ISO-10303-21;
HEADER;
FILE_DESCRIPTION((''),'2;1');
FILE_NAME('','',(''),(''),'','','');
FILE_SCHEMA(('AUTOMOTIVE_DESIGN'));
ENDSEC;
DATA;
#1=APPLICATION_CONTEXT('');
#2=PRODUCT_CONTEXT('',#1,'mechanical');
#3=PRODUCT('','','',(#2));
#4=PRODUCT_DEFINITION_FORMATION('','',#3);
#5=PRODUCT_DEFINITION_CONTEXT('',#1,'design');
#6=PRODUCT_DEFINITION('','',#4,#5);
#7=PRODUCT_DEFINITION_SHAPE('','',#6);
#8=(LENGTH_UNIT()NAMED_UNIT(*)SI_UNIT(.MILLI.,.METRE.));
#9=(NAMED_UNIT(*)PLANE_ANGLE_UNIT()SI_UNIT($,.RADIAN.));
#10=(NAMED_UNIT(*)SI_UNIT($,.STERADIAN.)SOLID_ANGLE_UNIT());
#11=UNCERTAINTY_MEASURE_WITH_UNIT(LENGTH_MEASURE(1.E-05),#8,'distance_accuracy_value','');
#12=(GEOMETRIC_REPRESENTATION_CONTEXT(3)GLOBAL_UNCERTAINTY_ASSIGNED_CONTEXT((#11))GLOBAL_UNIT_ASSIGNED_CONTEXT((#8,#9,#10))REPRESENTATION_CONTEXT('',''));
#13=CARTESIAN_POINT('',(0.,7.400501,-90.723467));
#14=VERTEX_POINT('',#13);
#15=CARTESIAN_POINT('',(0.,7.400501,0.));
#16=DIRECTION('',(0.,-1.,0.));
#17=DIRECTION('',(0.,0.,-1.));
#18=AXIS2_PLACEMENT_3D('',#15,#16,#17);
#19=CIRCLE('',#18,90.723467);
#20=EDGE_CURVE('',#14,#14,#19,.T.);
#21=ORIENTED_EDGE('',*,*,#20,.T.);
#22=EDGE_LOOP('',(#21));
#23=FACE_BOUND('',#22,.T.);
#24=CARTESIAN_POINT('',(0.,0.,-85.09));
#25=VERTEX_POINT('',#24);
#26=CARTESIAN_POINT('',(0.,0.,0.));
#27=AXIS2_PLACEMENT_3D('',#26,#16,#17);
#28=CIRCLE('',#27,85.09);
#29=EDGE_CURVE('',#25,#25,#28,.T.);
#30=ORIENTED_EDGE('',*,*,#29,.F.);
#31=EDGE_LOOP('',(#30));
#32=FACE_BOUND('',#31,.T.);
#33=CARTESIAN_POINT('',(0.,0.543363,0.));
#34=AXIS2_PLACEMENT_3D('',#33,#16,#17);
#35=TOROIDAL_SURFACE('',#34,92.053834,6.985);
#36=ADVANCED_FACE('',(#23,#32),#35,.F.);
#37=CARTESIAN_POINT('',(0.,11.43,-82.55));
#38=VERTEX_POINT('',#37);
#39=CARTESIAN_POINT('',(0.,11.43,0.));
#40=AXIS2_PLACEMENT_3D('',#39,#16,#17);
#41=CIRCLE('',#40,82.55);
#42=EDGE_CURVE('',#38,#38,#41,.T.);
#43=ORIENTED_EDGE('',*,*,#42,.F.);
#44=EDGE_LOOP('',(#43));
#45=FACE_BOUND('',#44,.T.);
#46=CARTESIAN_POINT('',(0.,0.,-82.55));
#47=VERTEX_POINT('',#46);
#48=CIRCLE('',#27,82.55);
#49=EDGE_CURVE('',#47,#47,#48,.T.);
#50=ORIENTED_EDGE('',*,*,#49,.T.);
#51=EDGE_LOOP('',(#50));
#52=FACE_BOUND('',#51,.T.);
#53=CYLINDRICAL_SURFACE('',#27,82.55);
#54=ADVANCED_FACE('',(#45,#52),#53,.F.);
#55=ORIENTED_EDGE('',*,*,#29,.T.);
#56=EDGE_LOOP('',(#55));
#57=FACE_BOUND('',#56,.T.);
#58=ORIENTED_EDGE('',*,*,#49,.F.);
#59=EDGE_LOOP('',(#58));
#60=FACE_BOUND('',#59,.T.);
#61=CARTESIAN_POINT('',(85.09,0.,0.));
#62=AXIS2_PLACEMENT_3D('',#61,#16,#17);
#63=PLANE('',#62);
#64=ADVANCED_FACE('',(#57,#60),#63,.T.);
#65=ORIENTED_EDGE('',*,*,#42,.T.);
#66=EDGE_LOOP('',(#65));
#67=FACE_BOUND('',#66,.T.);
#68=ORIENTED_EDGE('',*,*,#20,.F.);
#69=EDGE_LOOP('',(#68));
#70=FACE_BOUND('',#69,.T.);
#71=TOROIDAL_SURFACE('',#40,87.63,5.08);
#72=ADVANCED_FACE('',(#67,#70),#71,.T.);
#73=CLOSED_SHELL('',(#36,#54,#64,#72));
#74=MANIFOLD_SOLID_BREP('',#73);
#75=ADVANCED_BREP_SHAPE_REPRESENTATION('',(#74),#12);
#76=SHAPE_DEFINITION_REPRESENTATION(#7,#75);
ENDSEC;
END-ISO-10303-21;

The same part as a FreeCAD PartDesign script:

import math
import FreeCAD as App
import Part
import Sketcher
from FreeCAD import Vector
Q = App.Units.Quantity

doc = App.newDocument("Part")
body = doc.addObject("PartDesign::Body", "Body")

# Sketch on XY plane
sketch1 = doc.addObject("Sketcher::SketchObject", "Sketch")
body.addObject(sketch1)
sketch1.AttachmentSupport = (doc.XY_Plane, [""])
sketch1.MapMode = "FlatFace"
sketch1.addGeometry([
    Part.LineSegment(Vector(82.55, 11.43, 0), Vector(82.55, 0, 0)),
    Part.LineSegment(Vector(82.55, 0, 0), Vector(85.09, 0, 0)),
    Part.ArcOfCircle(Part.Circle(Vector(92.053834, 0.543363, 0), Vector(0, 0, 1), 6.985), math.radians(100.979658), math.radians(184.461543)),
    Part.ArcOfCircle(Part.Circle(Vector(87.63, 11.43, 0), Vector(0, 0, 1), 5.08), math.radians(-52.486359), math.radians(180)),
], False)
sketch1.addConstraint([
    Sketcher.Constraint("Coincident", 0, 2, 1, 1),
    Sketcher.Constraint("Coincident", 1, 2, 2, 2),
    Sketcher.Constraint("Coincident", 2, 1, 3, 1),
    Sketcher.Constraint("Tangent", 3, 2, 0, 1),
    Sketcher.Constraint("Vertical", 0),
    Sketcher.Constraint("Horizontal", 1),
    Sketcher.Constraint("PointOnObject", 0, 2, -1),
    Sketcher.Constraint("Radius", 3, Q("0.2 in")),
    Sketcher.Constraint("DistanceX", 1, 1, 1, 2, Q("0.1 in")),
    Sketcher.Constraint("Radius", 2, Q("0.275 in")),
    Sketcher.Constraint("DistanceY", 0, 2, 0, 1, Q("0.45 in")),
    Sketcher.Constraint("DistanceX", -1, 1, 3, 3, Q("3.45 in")),
    Sketcher.Constraint("DistanceY", -1, 1, 2, 1, Q("7.400501 mm")),
])
revolution = doc.addObject("PartDesign::Revolution", "Revolution")
body.addObject(revolution)
revolution.Profile = sketch1
revolution.ReferenceAxis = (sketch1, ["V_Axis"])
revolution.Angle = 360

doc.recompute()
